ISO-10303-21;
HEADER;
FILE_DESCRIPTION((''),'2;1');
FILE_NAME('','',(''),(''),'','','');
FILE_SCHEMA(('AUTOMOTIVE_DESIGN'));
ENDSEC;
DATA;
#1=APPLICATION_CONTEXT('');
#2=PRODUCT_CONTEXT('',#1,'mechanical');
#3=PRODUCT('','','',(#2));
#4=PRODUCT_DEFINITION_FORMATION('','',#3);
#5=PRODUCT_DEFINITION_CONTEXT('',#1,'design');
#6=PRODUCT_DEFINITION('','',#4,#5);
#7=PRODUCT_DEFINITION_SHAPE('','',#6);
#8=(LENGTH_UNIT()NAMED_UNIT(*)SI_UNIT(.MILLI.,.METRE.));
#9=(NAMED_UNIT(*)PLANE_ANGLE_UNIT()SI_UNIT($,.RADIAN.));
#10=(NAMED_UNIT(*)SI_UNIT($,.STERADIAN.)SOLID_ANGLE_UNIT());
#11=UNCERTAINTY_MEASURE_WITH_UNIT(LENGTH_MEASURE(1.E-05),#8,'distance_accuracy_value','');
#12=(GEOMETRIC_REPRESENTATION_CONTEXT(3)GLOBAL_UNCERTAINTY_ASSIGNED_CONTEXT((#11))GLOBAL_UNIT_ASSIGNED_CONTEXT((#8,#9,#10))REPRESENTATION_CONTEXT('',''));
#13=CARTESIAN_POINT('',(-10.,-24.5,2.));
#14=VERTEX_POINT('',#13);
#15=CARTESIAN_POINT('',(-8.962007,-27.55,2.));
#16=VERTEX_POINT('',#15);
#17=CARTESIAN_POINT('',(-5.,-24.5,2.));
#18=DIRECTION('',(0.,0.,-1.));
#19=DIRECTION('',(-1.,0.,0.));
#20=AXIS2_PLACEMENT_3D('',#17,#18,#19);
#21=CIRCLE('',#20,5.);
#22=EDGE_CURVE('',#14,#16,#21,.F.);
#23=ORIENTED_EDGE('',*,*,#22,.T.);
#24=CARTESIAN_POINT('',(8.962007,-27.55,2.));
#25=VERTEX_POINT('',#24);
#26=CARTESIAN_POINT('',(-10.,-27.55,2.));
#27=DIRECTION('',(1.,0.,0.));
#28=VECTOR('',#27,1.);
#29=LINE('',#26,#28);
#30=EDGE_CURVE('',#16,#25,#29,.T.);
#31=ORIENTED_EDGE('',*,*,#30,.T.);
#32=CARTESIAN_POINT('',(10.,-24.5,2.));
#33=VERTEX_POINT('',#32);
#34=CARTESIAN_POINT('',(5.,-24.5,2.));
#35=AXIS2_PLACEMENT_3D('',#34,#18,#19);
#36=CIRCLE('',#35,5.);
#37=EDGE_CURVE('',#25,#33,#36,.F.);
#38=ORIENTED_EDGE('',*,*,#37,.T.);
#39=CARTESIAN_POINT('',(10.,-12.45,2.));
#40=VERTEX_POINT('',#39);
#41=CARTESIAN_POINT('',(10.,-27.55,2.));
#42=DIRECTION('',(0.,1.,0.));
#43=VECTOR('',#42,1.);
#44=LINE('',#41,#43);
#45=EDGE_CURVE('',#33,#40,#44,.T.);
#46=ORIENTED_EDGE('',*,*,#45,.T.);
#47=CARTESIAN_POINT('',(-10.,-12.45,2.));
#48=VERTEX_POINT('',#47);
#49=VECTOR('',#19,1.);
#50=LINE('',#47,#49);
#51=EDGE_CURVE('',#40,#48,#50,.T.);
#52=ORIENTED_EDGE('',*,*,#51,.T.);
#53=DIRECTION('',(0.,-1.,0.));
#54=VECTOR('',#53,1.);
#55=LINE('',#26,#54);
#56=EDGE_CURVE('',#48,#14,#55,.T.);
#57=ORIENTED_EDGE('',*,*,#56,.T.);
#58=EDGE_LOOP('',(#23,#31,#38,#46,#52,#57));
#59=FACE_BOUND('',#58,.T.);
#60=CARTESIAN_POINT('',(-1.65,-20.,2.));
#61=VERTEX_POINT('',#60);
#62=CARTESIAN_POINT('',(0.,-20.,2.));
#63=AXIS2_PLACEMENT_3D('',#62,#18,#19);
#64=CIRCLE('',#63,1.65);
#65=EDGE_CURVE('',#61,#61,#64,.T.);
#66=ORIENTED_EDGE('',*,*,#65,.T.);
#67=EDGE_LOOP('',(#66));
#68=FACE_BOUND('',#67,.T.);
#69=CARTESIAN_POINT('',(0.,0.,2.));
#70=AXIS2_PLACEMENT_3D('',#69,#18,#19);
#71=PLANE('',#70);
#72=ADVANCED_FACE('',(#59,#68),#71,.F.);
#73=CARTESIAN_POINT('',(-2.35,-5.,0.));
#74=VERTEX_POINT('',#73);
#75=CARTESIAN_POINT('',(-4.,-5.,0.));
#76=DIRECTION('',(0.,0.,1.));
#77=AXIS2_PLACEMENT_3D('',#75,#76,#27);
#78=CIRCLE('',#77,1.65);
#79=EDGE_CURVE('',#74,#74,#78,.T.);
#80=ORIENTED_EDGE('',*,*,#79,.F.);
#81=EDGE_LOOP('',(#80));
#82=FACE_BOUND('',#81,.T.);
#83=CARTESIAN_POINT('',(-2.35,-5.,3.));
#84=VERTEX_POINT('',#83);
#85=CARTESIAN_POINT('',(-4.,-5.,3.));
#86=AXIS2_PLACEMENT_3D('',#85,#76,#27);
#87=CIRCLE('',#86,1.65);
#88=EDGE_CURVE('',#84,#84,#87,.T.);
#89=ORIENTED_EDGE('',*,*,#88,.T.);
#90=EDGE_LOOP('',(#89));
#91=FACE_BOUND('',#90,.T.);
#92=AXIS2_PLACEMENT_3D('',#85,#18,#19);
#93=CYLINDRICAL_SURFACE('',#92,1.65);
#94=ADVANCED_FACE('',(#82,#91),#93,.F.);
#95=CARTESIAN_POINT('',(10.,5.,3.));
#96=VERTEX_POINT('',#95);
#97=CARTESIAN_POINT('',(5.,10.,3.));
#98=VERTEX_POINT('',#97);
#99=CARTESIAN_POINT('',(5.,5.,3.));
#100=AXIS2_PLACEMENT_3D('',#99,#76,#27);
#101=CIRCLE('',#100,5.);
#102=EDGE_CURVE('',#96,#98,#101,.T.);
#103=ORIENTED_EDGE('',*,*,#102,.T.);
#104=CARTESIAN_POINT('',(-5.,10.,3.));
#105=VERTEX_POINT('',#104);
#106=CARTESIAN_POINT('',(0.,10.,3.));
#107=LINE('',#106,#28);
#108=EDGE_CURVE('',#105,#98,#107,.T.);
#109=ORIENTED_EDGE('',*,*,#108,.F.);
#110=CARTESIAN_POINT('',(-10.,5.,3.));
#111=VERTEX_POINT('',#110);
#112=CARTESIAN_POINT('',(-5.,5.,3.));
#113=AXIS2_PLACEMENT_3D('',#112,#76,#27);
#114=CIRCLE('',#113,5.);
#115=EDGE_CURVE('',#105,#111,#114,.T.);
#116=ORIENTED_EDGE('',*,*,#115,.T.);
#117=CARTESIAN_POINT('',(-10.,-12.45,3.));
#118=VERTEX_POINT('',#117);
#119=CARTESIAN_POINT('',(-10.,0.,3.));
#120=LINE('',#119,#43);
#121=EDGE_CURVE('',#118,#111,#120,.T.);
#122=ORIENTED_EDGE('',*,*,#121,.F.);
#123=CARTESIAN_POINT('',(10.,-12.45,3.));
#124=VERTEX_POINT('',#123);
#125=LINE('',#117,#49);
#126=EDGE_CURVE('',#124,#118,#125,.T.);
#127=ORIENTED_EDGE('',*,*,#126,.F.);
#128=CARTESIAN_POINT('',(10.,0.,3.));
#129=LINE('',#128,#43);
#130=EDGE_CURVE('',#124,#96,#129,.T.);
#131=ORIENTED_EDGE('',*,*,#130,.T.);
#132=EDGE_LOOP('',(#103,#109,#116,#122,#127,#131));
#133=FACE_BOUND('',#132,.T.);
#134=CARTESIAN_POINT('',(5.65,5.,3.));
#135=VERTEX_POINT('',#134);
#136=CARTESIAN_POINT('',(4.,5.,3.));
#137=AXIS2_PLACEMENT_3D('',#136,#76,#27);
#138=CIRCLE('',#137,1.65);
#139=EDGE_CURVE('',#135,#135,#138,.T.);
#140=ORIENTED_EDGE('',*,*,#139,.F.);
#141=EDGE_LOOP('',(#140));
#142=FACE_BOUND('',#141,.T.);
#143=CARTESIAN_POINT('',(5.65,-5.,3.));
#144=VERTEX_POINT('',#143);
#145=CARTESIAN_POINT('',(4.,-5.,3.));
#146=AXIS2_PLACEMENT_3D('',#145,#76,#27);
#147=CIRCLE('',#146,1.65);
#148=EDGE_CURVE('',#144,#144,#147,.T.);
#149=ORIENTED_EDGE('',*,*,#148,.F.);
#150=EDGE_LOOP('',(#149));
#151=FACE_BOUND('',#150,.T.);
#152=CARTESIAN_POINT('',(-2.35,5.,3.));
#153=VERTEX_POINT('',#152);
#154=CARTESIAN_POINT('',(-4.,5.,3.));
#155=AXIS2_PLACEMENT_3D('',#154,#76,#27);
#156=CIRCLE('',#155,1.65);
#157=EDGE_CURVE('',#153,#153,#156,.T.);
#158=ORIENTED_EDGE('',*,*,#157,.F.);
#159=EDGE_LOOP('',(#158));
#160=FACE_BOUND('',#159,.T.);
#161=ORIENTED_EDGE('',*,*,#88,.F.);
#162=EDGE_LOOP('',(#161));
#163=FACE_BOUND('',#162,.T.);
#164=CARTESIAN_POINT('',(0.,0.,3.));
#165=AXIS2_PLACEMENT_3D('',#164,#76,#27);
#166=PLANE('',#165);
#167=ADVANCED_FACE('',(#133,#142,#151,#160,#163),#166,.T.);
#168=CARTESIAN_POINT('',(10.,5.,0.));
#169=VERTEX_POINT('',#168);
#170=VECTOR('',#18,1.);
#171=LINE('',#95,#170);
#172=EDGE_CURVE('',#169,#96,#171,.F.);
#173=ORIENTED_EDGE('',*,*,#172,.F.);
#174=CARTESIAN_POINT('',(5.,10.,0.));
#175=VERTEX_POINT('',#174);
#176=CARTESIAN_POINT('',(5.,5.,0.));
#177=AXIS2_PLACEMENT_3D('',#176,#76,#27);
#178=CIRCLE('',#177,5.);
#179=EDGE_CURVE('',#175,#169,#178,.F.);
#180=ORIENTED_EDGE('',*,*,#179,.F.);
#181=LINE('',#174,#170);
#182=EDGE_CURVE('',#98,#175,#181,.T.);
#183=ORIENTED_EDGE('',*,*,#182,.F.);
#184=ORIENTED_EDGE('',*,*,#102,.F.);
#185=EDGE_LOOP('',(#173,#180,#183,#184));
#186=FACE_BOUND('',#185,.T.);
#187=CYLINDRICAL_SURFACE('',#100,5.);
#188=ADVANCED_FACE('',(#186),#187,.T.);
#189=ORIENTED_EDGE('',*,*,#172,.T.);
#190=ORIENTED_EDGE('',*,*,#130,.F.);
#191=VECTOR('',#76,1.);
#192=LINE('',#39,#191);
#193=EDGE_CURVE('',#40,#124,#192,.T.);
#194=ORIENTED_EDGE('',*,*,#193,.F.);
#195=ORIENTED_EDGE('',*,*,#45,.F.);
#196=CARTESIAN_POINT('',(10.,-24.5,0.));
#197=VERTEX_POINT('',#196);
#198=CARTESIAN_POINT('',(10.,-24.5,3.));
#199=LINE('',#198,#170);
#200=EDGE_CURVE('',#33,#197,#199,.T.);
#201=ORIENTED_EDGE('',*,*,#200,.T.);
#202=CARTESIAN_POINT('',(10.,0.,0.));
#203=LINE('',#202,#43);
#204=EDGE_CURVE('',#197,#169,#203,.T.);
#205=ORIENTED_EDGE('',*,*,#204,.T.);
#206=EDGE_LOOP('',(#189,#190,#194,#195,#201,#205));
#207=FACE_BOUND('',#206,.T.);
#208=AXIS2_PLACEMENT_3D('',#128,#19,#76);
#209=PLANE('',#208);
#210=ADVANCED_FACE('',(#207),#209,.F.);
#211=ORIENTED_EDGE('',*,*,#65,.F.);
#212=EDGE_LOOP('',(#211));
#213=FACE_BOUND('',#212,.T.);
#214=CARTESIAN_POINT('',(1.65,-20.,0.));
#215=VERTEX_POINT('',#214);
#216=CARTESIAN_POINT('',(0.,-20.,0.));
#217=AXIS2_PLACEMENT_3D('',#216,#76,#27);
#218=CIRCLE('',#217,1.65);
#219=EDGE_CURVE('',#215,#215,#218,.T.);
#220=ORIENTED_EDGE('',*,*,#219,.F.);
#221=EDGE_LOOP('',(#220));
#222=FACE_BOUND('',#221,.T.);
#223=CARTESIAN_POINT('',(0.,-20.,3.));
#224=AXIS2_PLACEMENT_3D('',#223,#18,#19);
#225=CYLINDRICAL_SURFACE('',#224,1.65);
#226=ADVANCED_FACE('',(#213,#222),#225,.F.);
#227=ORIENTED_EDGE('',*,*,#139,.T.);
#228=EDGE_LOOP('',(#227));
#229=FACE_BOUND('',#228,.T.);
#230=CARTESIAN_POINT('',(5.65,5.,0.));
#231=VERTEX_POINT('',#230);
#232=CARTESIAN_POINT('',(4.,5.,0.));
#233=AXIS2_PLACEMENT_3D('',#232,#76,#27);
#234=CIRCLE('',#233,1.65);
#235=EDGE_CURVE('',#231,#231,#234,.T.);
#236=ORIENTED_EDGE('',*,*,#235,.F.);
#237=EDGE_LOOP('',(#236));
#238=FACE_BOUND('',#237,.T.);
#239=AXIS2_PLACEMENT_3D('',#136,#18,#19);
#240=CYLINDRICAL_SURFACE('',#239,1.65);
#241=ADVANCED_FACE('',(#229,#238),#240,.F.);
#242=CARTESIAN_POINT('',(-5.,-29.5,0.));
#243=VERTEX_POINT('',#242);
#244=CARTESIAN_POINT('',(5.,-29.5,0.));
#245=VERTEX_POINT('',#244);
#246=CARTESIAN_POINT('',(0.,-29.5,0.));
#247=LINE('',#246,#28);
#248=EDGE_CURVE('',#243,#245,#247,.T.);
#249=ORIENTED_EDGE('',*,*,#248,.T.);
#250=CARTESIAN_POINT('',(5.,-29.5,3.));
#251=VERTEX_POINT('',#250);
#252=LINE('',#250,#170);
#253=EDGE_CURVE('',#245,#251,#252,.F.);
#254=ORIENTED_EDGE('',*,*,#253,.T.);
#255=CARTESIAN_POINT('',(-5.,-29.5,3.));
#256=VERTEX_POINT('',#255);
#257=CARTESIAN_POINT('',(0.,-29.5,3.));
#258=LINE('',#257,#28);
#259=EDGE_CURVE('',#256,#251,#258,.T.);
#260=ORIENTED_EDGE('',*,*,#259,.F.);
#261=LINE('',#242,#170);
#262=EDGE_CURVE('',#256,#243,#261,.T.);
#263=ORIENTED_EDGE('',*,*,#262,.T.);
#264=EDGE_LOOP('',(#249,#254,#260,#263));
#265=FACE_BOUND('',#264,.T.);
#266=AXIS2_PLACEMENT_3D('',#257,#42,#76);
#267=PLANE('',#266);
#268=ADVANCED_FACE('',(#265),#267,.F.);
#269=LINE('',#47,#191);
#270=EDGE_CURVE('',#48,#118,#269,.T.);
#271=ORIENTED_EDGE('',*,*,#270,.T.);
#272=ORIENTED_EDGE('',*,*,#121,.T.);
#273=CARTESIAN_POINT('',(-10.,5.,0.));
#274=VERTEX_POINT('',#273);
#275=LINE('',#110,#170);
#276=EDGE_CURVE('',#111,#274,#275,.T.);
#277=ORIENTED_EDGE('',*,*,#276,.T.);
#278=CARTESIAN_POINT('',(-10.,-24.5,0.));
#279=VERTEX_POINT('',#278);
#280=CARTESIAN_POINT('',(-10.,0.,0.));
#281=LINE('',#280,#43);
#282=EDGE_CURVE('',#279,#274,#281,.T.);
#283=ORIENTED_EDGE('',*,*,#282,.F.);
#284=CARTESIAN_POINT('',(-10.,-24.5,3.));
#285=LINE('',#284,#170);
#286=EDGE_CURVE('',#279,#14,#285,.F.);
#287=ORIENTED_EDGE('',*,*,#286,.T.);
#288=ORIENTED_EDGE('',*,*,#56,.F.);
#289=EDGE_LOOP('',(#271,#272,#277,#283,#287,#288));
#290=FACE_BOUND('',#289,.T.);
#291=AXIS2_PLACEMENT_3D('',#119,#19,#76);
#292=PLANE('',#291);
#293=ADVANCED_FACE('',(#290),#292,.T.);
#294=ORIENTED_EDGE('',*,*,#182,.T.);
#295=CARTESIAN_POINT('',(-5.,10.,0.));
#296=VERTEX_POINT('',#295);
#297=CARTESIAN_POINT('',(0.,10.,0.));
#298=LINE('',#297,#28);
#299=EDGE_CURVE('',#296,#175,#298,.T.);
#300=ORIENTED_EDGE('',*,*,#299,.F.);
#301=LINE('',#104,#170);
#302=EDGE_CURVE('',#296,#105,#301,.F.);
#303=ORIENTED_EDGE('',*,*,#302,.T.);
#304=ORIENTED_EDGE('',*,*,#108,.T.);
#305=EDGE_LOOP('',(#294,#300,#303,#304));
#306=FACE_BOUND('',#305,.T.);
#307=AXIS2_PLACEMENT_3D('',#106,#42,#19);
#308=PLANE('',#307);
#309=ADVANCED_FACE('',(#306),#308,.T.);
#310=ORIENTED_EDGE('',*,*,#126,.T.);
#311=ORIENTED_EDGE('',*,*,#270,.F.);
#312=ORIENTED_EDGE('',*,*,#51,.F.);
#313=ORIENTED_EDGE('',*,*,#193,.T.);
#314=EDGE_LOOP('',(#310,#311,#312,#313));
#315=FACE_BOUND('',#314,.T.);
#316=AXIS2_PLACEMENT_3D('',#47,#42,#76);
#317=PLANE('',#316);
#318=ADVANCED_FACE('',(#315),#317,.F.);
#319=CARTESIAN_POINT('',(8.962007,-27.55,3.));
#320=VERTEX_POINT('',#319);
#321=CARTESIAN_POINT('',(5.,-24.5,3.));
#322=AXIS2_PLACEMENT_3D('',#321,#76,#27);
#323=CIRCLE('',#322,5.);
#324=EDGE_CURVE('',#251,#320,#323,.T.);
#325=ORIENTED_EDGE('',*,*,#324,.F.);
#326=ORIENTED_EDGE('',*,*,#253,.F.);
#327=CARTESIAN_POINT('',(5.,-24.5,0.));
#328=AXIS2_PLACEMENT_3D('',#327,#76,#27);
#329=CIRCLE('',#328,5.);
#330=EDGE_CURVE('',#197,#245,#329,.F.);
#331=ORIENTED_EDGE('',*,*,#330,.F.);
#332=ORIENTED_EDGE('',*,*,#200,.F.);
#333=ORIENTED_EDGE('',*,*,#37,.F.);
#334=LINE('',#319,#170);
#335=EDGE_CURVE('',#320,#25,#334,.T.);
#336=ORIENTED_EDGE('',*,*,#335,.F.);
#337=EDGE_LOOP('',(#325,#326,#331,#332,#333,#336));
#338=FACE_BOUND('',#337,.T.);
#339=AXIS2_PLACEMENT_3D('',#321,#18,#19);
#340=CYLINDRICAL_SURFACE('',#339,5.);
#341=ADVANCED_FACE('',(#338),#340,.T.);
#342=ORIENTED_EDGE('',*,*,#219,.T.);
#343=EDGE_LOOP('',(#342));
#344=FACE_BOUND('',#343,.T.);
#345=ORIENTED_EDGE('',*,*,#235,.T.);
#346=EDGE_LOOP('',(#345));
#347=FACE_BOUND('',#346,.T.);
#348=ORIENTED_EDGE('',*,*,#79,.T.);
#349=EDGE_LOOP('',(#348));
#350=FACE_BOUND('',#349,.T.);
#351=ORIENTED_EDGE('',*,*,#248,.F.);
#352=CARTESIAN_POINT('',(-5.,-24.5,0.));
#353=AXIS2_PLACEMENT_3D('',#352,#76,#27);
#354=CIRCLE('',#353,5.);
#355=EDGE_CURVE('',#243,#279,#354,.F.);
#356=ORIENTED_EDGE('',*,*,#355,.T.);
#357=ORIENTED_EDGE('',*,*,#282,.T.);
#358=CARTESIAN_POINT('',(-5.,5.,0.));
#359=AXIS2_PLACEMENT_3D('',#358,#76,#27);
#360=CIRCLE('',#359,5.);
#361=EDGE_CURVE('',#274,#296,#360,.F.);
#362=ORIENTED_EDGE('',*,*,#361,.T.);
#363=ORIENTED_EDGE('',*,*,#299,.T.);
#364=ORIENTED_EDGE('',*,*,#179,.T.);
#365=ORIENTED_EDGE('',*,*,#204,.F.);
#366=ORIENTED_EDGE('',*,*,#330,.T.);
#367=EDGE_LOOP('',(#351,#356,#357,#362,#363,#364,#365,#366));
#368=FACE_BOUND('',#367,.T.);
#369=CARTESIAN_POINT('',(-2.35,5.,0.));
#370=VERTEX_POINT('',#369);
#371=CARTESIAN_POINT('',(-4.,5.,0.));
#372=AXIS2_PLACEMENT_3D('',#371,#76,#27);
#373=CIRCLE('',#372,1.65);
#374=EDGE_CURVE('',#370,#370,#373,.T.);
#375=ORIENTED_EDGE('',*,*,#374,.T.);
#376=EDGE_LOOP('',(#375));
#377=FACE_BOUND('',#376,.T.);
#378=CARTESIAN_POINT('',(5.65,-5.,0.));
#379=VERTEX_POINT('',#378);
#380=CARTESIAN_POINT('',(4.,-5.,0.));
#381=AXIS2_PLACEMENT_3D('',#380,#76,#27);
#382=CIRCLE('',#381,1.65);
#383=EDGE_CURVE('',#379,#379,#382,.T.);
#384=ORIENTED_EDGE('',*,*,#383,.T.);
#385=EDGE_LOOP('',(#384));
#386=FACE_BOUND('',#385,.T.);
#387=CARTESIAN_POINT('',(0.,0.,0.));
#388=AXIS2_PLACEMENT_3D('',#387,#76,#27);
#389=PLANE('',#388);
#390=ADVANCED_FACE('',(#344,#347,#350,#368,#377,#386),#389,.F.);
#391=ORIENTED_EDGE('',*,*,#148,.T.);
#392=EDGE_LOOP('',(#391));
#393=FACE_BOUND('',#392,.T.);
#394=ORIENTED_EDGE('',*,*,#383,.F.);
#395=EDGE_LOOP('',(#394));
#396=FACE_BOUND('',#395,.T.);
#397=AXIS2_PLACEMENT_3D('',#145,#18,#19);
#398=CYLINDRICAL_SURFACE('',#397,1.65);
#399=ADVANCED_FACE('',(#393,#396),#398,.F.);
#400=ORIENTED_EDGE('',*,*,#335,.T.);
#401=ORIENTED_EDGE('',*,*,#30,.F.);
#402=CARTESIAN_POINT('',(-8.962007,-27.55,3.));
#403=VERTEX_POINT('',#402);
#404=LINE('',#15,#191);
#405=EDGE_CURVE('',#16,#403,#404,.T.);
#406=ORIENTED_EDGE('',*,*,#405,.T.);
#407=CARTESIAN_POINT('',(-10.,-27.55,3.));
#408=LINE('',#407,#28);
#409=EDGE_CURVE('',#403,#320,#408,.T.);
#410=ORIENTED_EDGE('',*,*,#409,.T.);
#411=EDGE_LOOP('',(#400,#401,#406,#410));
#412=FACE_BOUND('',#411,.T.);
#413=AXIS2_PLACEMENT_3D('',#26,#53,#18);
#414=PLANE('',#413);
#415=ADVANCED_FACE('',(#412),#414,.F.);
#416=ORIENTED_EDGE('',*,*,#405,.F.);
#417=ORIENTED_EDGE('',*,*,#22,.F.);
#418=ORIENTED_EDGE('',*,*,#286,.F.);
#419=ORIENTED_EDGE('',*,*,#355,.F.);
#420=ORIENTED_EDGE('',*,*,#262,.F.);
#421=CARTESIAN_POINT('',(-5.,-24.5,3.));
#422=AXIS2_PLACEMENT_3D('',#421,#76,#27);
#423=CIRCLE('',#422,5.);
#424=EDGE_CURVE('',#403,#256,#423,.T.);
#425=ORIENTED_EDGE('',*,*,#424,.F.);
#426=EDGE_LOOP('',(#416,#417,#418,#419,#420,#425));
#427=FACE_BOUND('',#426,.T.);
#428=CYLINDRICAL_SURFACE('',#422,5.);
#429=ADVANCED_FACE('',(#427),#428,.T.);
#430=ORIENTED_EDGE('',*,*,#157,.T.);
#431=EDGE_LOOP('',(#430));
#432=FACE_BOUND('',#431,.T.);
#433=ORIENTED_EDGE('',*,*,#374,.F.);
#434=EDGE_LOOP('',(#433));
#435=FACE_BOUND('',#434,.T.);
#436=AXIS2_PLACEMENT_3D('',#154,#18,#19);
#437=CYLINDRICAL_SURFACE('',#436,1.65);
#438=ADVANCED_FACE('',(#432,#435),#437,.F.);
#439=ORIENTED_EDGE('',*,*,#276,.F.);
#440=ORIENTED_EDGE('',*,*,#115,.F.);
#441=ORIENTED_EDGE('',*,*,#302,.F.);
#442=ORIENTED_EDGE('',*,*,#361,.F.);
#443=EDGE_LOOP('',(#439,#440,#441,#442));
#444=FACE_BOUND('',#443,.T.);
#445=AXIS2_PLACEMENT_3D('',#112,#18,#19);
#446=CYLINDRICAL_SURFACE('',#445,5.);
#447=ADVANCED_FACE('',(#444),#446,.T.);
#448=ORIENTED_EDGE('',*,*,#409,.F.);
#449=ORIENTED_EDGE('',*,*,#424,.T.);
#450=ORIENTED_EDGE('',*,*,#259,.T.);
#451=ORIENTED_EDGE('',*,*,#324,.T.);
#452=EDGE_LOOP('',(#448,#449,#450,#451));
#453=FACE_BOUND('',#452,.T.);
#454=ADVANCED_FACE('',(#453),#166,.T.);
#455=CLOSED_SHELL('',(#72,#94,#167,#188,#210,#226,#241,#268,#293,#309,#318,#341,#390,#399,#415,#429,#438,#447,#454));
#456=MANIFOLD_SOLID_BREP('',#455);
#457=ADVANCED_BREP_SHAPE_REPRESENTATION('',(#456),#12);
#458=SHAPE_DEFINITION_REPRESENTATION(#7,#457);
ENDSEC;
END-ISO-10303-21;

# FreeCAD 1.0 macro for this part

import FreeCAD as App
import Part
import Sketcher
from FreeCAD import Vector
Q = App.Units.Quantity


def edges_at(feature, points):
    """Names of the edges that pass closest to the given points."""
    edges = feature.Shape.Edges
    near = lambda p: min(range(len(edges)), key=lambda i: edges[i].distToShape(Part.Vertex(*p))[0])
    return sorted({f"Edge{near(p) + 1}" for p in points})

doc = App.newDocument("Part")
body = doc.addObject("PartDesign::Body", "Body")

# Sketch on XY plane
sketch1 = body.newObject("Sketcher::SketchObject", "Sketch")
sketch1.AttachmentSupport = (doc.getObject("XY_Plane"), [""])
sketch1.MapMode = "FlatFace"
sketch1.addGeometry([
    Part.LineSegment(Vector(-10, 10, 0), Vector(-10, -29.5, 0)),  # 0
    Part.LineSegment(Vector(-10, -29.5, 0), Vector(10, -29.5, 0)),  # 1
    Part.LineSegment(Vector(10, -29.5, 0), Vector(10, 10, 0)),  # 2
    Part.LineSegment(Vector(10, 10, 0), Vector(-10, 10, 0)),  # 3
    Part.Circle(Vector(0, -20, 0), Vector(0, 0, 1), 1.65),  # 4
    Part.Circle(Vector(-4, -5, 0), Vector(0, 0, 1), 1.65),  # 5
    Part.Circle(Vector(-4, 5, 0), Vector(0, 0, 1), 1.65),  # 6
    Part.Circle(Vector(4, -5, 0), Vector(0, 0, 1), 1.65),  # 7
    Part.Circle(Vector(4, 5, 0), Vector(0, 0, 1), 1.65),  # 8
], False)
sketch1.addConstraint([
    Sketcher.Constraint("Coincident", 0, 2, 1, 1),
    Sketcher.Constraint("Coincident", 1, 2, 2, 1),
    Sketcher.Constraint("Coincident", 2, 2, 3, 1),
    Sketcher.Constraint("Coincident", 3, 2, 0, 1),
    Sketcher.Constraint("Vertical", 0),
    Sketcher.Constraint("Horizontal", 1),
    Sketcher.Constraint("Vertical", 2),
    Sketcher.Constraint("Horizontal", 3),
    Sketcher.Constraint("Equal", 4, 5),
    Sketcher.Constraint("Equal", 5, 6),
    Sketcher.Constraint("Equal", 6, 7),
    Sketcher.Constraint("Equal", 7, 8),
    Sketcher.Constraint("Symmetric", 6, 3, 7, 3, -1, 1),
    Sketcher.Constraint("Symmetric", 5, 3, 8, 3, -1, 1),
    Sketcher.Constraint("Symmetric", 5, 3, 7, 3, -2),
    Sketcher.Constraint("PointOnObject", 4, 3, -2),
    Sketcher.Constraint("Diameter", 4, Q("3.3 mm")),
    Sketcher.Constraint("DistanceX", 1, 1, 1, 2, Q("20 mm")),
    Sketcher.Constraint("DistanceY", 0, 2, 0, 1, Q("39.5 mm")),
    Sketcher.Constraint("DistanceY", 4, 3, -1, 1, Q("20 mm")),
    Sketcher.Constraint("DistanceX", 5, 3, -1, 1, Q("4 mm")),
    Sketcher.Constraint("DistanceY", 5, 3, -1, 1, Q("5 mm")),
    Sketcher.Constraint("DistanceX", 0, 2, -1, 1, Q("10 mm")),
    Sketcher.Constraint("DistanceY", -1, 1, 2, 2, Q("10 mm")),
])
pad1 = body.newObject("PartDesign::Pad", "Pad")
pad1.Profile = sketch1
pad1.Length = 3

# Sketch on XY plane
sketch2 = body.newObject("Sketcher::SketchObject", "Sketch001")
sketch2.AttachmentSupport = (doc.getObject("XY_Plane"), [""])
sketch2.MapMode = "FlatFace"
sketch2.AttachmentOffset = App.Placement(Vector(0, 0, 3), App.Rotation())
sketch2.addGeometry([
    Part.LineSegment(Vector(-10, -12.45, 0), Vector(-10, -27.55, 0)),
    Part.LineSegment(Vector(-10, -27.55, 0), Vector(10, -27.55, 0)),
    Part.LineSegment(Vector(10, -27.55, 0), Vector(10, -12.45, 0)),
    Part.LineSegment(Vector(10, -12.45, 0), Vector(-10, -12.45, 0)),
], False)
sketch2.addConstraint([
    Sketcher.Constraint("Coincident", 0, 2, 1, 1),
    Sketcher.Constraint("Coincident", 1, 2, 2, 1),
    Sketcher.Constraint("Coincident", 2, 2, 3, 1),
    Sketcher.Constraint("Coincident", 3, 2, 0, 1),
    Sketcher.Constraint("Vertical", 0),
    Sketcher.Constraint("Horizontal", 1),
    Sketcher.Constraint("Vertical", 2),
    Sketcher.Constraint("Horizontal", 3),
    Sketcher.Constraint("DistanceX", 1, 1, 1, 2, Q("20 mm")),
    Sketcher.Constraint("DistanceY", 0, 2, 0, 1, Q("15.1 mm")),
    Sketcher.Constraint("DistanceX", 0, 2, -1, 1, Q("10 mm")),
    Sketcher.Constraint("DistanceY", 0, 2, -1, 1, Q("27.55 mm")),
])
pocket1 = body.newObject("PartDesign::Pocket", "Pocket")
pocket1.Profile = sketch2
pocket1.Length = 1
doc.recompute()

fillet = body.newObject("PartDesign::Fillet", "Fillet")
fillet.Base = (pocket1, edges_at(pocket1, [
    (-10, -29.5, 1.5),
    (10, -29.5, 1.5),
    (-10, 10, 1.5),
    (10, 10, 1.5),
]))
fillet.Radius = 5

doc.recompute()
